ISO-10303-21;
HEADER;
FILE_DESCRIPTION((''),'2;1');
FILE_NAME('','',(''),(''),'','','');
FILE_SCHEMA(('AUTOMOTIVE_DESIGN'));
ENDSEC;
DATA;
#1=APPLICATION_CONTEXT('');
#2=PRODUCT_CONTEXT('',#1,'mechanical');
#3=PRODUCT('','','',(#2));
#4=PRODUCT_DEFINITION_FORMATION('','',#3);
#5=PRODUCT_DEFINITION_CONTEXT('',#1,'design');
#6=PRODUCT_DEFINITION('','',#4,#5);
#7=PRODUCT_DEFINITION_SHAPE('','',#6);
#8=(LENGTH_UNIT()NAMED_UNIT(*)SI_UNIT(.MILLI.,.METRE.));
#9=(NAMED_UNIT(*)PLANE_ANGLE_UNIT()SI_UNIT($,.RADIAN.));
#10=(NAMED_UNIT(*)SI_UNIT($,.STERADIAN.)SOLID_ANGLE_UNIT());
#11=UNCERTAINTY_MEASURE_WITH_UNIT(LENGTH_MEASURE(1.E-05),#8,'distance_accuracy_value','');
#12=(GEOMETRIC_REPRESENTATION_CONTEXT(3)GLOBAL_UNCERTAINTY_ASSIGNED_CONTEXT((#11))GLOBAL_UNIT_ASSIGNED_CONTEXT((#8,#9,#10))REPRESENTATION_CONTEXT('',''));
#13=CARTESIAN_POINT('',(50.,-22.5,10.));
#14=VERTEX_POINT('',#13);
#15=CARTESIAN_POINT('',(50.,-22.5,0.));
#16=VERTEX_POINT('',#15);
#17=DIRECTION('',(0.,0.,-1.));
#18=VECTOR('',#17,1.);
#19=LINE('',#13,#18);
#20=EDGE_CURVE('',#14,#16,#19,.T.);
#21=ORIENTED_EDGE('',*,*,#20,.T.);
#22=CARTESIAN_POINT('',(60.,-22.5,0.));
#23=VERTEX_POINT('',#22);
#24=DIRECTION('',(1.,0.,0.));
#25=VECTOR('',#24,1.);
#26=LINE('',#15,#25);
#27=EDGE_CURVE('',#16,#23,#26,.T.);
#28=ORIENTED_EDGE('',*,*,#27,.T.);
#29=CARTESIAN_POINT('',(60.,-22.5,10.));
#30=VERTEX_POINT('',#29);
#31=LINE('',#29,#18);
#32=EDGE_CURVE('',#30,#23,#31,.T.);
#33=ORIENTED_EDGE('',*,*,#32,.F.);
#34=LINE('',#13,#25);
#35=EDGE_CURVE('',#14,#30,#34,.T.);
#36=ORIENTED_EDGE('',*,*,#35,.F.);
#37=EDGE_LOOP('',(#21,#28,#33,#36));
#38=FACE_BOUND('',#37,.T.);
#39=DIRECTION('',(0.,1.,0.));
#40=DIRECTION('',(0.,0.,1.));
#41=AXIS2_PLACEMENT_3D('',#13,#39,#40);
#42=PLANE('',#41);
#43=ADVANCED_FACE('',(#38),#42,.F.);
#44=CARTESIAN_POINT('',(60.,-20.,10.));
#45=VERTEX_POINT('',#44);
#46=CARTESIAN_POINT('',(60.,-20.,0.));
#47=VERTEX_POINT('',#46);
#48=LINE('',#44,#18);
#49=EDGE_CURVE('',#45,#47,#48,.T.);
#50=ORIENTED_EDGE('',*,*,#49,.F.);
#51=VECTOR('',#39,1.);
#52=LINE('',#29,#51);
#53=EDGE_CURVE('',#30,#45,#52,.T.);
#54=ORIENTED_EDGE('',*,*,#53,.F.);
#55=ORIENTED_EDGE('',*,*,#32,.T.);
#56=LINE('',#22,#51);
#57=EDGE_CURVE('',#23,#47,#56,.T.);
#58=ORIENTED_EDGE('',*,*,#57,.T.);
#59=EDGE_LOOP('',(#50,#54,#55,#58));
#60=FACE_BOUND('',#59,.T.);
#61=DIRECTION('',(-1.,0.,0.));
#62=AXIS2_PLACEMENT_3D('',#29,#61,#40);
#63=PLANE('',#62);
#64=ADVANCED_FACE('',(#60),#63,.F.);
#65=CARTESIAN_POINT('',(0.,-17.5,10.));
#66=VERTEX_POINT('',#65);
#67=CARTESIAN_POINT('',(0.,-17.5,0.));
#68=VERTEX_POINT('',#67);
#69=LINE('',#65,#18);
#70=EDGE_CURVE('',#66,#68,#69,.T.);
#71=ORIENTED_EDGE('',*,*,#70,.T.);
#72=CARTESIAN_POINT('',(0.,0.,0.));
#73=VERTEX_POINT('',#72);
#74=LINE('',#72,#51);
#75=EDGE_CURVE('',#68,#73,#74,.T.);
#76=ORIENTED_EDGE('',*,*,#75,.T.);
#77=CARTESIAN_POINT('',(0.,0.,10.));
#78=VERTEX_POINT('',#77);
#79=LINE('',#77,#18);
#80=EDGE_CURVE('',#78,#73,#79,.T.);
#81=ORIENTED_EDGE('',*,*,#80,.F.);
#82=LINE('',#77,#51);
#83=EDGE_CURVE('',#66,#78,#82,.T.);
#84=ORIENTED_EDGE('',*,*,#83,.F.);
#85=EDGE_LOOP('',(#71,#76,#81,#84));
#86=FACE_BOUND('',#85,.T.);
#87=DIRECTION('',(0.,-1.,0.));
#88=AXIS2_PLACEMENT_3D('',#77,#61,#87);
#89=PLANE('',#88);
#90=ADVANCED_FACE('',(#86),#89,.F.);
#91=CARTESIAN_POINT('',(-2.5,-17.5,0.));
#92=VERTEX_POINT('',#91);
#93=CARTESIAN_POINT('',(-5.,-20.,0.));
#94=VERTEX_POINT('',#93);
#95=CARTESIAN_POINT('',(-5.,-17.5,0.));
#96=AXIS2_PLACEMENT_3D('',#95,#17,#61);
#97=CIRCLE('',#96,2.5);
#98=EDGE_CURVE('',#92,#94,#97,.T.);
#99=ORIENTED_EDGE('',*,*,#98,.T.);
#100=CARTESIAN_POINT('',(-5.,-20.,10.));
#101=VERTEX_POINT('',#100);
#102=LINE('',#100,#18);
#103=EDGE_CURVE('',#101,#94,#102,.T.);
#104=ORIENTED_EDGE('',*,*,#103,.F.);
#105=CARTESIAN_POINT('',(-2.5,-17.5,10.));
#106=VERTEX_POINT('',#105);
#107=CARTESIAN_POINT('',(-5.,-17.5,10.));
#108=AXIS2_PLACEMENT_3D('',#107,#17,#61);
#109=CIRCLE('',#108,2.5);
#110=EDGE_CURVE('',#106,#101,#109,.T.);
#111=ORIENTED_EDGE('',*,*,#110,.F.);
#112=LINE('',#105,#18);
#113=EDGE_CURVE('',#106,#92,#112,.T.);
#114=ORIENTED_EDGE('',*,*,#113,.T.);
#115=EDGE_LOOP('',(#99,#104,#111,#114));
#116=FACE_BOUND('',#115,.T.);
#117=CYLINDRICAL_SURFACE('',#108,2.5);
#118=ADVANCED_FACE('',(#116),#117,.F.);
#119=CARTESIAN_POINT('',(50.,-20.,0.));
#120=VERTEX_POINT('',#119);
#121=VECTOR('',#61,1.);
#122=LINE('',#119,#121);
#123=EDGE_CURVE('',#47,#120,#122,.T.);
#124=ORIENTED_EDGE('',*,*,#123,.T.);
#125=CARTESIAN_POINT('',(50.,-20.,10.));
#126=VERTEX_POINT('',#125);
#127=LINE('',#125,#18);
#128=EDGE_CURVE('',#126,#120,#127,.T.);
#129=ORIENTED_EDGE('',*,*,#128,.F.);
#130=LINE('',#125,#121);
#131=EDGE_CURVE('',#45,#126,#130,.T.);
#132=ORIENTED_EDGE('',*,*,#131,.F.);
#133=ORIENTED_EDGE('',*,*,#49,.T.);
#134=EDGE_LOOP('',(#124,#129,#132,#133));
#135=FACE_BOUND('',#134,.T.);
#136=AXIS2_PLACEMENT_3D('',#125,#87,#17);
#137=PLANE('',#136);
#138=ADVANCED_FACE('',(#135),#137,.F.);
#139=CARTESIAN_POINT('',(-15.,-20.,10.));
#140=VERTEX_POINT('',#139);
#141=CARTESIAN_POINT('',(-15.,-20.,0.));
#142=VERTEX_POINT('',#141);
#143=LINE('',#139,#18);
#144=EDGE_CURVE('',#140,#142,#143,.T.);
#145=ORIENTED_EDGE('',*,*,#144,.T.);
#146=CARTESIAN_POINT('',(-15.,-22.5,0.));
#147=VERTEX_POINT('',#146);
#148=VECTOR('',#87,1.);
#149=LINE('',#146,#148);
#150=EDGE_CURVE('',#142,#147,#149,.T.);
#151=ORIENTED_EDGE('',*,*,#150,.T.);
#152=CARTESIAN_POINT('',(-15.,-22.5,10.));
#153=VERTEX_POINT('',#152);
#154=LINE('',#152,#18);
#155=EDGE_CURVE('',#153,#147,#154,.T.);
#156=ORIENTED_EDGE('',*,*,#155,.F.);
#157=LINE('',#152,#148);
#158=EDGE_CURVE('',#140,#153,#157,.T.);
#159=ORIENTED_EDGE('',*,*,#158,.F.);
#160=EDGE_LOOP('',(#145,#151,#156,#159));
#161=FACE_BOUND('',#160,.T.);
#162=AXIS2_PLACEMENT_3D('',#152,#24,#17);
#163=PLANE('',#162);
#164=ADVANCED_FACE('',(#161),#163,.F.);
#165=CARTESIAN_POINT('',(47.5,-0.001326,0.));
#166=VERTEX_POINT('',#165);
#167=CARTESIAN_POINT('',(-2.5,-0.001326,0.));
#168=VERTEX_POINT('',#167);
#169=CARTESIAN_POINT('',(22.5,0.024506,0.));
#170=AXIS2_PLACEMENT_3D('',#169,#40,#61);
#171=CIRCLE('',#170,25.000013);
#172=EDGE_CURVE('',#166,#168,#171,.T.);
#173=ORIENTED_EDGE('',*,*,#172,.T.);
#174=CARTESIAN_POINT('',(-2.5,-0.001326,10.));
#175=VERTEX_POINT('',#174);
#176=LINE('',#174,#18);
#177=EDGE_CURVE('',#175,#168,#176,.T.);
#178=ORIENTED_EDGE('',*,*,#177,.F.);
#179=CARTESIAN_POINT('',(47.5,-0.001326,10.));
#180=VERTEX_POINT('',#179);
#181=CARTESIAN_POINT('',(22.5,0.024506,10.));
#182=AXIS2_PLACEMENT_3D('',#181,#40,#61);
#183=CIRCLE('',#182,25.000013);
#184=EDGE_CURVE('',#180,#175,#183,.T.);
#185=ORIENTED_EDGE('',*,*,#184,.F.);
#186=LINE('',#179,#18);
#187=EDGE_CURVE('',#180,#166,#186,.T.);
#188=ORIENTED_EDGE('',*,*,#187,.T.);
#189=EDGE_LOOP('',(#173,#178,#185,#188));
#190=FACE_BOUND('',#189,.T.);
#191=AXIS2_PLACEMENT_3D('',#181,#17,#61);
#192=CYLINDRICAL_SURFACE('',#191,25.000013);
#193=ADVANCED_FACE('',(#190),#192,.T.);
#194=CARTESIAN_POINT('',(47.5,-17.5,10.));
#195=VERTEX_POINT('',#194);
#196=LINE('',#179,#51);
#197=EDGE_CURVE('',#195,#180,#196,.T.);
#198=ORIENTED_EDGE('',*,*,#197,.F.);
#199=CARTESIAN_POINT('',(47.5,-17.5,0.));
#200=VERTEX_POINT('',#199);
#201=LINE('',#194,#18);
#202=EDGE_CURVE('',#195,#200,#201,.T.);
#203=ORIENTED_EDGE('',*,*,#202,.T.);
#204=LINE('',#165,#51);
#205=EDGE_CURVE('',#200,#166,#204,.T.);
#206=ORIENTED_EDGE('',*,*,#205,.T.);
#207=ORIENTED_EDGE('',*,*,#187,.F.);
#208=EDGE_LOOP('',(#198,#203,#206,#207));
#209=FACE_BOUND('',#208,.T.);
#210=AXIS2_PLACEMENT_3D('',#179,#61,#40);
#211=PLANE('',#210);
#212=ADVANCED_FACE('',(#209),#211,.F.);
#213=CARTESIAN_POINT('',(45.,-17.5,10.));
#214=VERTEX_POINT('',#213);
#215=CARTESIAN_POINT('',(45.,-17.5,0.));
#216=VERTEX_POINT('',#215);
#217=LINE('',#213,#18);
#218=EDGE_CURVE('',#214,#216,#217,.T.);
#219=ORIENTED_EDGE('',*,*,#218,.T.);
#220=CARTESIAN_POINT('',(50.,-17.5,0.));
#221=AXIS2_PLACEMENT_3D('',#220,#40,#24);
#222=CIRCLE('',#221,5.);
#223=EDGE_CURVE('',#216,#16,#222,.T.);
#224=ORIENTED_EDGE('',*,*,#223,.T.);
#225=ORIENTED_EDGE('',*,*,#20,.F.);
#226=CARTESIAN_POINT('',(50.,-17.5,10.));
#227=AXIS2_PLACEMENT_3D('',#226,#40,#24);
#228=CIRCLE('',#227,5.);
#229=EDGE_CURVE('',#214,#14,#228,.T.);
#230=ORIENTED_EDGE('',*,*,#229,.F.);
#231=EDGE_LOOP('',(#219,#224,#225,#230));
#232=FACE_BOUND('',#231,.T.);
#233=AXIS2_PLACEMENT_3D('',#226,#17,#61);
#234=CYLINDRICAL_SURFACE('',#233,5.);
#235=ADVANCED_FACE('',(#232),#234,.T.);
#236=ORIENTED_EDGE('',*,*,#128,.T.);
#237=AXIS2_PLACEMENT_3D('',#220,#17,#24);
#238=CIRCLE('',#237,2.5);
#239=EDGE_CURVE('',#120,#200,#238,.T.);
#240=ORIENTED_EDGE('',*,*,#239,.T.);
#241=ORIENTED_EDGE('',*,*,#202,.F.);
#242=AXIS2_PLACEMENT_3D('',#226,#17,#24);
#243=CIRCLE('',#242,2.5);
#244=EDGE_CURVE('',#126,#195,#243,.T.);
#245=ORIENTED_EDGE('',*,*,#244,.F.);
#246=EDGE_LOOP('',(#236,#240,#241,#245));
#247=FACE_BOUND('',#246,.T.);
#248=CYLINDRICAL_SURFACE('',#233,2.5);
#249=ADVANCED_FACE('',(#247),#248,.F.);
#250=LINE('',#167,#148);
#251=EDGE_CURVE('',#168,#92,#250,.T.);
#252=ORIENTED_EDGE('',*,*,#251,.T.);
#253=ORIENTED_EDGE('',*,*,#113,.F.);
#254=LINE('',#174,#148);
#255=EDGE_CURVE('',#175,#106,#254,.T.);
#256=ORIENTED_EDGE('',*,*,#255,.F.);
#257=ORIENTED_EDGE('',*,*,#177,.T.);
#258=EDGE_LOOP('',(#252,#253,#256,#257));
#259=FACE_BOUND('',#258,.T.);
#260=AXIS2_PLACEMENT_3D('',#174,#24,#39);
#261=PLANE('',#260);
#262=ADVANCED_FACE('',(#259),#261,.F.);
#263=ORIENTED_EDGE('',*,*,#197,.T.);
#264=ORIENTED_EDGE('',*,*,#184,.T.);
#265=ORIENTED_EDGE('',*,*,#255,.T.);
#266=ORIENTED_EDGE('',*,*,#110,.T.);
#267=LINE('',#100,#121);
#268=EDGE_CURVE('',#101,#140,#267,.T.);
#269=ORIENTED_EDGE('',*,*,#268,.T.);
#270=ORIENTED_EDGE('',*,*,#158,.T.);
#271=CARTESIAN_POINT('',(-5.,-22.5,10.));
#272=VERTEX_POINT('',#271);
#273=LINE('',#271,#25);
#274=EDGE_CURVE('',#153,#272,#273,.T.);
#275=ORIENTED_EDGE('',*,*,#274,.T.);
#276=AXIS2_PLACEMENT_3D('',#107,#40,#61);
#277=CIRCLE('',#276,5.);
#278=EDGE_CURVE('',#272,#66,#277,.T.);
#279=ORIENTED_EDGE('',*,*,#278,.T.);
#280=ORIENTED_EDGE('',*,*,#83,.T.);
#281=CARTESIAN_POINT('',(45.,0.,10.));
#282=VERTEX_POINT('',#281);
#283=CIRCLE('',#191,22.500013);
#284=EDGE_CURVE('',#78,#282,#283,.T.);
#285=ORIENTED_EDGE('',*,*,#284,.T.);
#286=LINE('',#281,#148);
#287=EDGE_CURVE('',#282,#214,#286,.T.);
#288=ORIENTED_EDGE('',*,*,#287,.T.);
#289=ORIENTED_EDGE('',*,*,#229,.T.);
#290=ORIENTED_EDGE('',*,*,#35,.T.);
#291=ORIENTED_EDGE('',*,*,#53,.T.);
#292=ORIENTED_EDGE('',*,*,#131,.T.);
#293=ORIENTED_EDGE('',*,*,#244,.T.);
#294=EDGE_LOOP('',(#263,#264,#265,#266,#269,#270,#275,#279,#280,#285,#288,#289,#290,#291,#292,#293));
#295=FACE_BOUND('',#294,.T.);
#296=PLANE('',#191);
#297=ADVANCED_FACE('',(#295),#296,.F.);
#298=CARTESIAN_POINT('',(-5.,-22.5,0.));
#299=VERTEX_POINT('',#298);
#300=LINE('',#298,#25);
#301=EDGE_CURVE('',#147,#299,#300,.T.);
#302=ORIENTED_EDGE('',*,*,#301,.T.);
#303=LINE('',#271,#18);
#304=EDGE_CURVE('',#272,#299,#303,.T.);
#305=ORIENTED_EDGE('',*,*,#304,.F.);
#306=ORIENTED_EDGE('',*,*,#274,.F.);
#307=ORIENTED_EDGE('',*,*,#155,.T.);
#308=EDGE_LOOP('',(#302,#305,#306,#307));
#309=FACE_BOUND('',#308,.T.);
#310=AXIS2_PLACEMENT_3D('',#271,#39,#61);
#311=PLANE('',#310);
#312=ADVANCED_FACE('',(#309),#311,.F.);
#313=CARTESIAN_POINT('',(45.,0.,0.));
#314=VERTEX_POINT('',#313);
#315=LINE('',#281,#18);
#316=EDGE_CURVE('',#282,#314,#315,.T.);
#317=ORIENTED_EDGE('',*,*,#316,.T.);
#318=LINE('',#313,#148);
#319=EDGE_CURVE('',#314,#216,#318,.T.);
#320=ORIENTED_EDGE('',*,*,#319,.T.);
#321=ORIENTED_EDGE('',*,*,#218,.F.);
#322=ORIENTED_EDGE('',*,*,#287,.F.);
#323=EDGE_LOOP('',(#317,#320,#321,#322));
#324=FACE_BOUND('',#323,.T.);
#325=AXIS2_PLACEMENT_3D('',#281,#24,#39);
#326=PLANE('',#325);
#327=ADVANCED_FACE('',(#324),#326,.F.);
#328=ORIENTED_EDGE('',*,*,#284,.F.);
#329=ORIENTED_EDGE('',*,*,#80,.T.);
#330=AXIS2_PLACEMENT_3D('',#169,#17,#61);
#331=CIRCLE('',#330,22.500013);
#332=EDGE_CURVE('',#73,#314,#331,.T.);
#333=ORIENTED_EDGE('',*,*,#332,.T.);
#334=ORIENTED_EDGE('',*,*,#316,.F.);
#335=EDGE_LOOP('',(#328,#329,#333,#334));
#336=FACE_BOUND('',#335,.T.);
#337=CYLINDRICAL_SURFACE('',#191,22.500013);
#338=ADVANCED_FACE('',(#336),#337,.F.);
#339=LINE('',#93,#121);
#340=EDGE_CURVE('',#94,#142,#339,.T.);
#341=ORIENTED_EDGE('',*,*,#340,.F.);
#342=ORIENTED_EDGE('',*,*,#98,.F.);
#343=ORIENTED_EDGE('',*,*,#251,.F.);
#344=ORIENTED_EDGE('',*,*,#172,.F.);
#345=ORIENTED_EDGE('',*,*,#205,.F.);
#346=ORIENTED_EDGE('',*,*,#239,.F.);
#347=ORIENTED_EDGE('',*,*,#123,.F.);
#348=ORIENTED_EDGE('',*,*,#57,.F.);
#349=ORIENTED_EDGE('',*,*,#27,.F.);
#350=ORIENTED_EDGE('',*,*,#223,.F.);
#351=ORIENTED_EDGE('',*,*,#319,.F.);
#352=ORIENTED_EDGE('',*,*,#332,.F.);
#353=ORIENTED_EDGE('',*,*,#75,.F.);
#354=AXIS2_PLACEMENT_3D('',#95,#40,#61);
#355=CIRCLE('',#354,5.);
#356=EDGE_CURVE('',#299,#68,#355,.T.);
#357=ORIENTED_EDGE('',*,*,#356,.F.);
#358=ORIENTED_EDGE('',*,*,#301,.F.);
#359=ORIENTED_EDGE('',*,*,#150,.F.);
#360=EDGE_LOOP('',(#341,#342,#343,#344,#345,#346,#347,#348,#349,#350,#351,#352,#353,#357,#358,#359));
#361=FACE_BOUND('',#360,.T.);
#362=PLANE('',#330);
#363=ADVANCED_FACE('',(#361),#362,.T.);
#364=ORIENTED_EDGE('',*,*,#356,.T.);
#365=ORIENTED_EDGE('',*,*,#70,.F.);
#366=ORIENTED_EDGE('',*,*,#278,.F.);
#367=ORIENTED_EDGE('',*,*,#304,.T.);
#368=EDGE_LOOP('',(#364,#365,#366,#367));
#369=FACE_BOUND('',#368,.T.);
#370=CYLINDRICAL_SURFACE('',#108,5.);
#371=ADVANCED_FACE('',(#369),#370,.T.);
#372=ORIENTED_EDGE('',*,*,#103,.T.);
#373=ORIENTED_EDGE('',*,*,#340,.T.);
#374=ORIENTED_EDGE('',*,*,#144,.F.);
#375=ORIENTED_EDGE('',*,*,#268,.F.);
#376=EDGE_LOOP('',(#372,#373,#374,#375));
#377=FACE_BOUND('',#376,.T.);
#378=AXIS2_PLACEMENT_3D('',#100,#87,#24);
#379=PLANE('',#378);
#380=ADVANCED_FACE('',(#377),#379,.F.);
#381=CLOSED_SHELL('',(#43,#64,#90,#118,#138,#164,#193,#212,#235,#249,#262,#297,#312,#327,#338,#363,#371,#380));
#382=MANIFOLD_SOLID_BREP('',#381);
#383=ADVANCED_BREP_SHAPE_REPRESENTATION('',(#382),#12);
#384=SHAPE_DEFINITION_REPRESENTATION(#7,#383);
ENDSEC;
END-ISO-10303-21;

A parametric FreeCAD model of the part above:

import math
import FreeCAD as App
import Part
import Sketcher

V = App.Vector
Q = App.Units.Quantity

doc = App.newDocument("Part")
body = doc.addObject("PartDesign::Body", "Body")

# Sketch on XY plane
sketch1 = doc.addObject("Sketcher::SketchObject", "Sketch")
body.addObject(sketch1)
sketch1.AttachmentSupport = (doc.XY_Plane, [""])
sketch1.MapMode = "FlatFace"
sketch1.addGeometry([
    Part.LineSegment(V(0, -17.5, 0), V(0, 0, 0)),  # 0
    Part.ArcOfCircle(Part.Circle(V(22.5, 0, 0), V(0, 0, 1), 22.5), math.radians(0), math.radians(180)),  # 1
    Part.LineSegment(V(45, 0, 0), V(45, -17.5, 0)),  # 2
    Part.ArcOfCircle(Part.Circle(V(50, -17.5, 0), V(0, 0, 1), 5), math.radians(180), math.radians(270)),  # 3
    Part.LineSegment(V(50, -22.5, 0), V(60, -22.5, 0)),  # 4
    Part.LineSegment(V(60, -22.5, 0), V(60, -20, 0)),  # 5
    Part.LineSegment(V(60, -20, 0), V(50, -20, 0)),  # 6
    Part.ArcOfCircle(Part.Circle(V(50, -17.5, 0), V(0, 0, 1), 2.5), math.radians(180), math.radians(270)),  # 7
    Part.LineSegment(V(47.5, -17.5, 0), V(47.5, 0, 0)),  # 8
    Part.ArcOfCircle(Part.Circle(V(22.5, 0, 0), V(0, 0, 1), 25), math.radians(0), math.radians(180)),  # 9
    Part.LineSegment(V(-2.5, 0, 0), V(-2.5, -17.5, 0)),  # 10
    Part.ArcOfCircle(Part.Circle(V(-5, -17.5, 0), V(0, 0, 1), 2.5), math.radians(-90), math.radians(0)),  # 11
    Part.LineSegment(V(-5, -20, 0), V(-15, -20, 0)),  # 12
    Part.LineSegment(V(-15, -20, 0), V(-15, -22.5, 0)),  # 13
    Part.LineSegment(V(-15, -22.5, 0), V(-5, -22.5, 0)),  # 14
    Part.ArcOfCircle(Part.Circle(V(-5, -17.5, 0), V(0, 0, 1), 5), math.radians(-90), math.radians(0)),  # 15
], False)
sketch1.addConstraint([
    Sketcher.Constraint("Coincident", 0, 2, 1, 2),
    Sketcher.Constraint("Coincident", 1, 1, 2, 1),
    Sketcher.Constraint("Tangent", 2, 2, 3, 1),
    Sketcher.Constraint("Tangent", 3, 2, 4, 1),
    Sketcher.Constraint("Coincident", 4, 2, 5, 1),
    Sketcher.Constraint("Coincident", 5, 2, 6, 1),
    Sketcher.Constraint("Tangent", 6, 2, 7, 2),
    Sketcher.Constraint("Tangent", 7, 1, 8, 1),
    Sketcher.Constraint("Coincident", 8, 2, 9, 1),
    Sketcher.Constraint("Coincident", 9, 2, 10, 1),
    Sketcher.Constraint("Tangent", 10, 2, 11, 2),
    Sketcher.Constraint("Tangent", 11, 1, 12, 1),
    Sketcher.Constraint("Coincident", 12, 2, 13, 1),
    Sketcher.Constraint("Coincident", 13, 2, 14, 1),
    Sketcher.Constraint("Tangent", 14, 2, 15, 1),
    Sketcher.Constraint("Tangent", 15, 2, 0, 1),
    Sketcher.Constraint("Vertical", 0),
    Sketcher.Constraint("Vertical", 2),
    Sketcher.Constraint("Horizontal", 4),
    Sketcher.Constraint("Vertical", 5),
    Sketcher.Constraint("Horizontal", 6),
    Sketcher.Constraint("Vertical", 8),
    Sketcher.Constraint("Vertical", 10),
    Sketcher.Constraint("Horizontal", 12),
    Sketcher.Constraint("Vertical", 13),
    Sketcher.Constraint("Horizontal", 14),
    Sketcher.Constraint("Coincident", 0, 2, -1, 1),
    Sketcher.Constraint("Coincident", 7, 3, 3, 3),
    Sketcher.Constraint("Coincident", 9, 3, 1, 3),
    Sketcher.Constraint("Coincident", 15, 3, 11, 3),
    Sketcher.Constraint("Equal", 7, 11),
    Sketcher.Constraint("PointOnObject", 1, 1, -1),
    Sketcher.Constraint("Horizontal", 7, 3, 11, 3),
    Sketcher.Constraint("Horizontal", 8, 2, 9, 2),
    Sketcher.Constraint("Equal", 6, 12),
    Sketcher.Constraint("Radius", 3, Q("5 mm")),
    Sketcher.Constraint("Radius", 7, Q("2.5 mm")),
    Sketcher.Constraint("DistanceX", 4, 1, 4, 2, Q("10 mm")),
    Sketcher.Constraint("DistanceY", 0, 1, 0, 2, Q("17.5 mm")),
    Sketcher.Constraint("DistanceX", -1, 1, 3, 3, Q("50 mm")),
    Sketcher.Constraint("DistanceY", 8, 1, 8, 2, Q("17.498674 mm")),
    Sketcher.Constraint("DistanceY", -1, 1, 1, 3, Q("0.024506 mm")),
])
pad1 = doc.addObject("PartDesign::Pad", "Pad")
body.addObject(pad1)
pad1.Profile = sketch1
pad1.Length = 10

doc.recompute()
